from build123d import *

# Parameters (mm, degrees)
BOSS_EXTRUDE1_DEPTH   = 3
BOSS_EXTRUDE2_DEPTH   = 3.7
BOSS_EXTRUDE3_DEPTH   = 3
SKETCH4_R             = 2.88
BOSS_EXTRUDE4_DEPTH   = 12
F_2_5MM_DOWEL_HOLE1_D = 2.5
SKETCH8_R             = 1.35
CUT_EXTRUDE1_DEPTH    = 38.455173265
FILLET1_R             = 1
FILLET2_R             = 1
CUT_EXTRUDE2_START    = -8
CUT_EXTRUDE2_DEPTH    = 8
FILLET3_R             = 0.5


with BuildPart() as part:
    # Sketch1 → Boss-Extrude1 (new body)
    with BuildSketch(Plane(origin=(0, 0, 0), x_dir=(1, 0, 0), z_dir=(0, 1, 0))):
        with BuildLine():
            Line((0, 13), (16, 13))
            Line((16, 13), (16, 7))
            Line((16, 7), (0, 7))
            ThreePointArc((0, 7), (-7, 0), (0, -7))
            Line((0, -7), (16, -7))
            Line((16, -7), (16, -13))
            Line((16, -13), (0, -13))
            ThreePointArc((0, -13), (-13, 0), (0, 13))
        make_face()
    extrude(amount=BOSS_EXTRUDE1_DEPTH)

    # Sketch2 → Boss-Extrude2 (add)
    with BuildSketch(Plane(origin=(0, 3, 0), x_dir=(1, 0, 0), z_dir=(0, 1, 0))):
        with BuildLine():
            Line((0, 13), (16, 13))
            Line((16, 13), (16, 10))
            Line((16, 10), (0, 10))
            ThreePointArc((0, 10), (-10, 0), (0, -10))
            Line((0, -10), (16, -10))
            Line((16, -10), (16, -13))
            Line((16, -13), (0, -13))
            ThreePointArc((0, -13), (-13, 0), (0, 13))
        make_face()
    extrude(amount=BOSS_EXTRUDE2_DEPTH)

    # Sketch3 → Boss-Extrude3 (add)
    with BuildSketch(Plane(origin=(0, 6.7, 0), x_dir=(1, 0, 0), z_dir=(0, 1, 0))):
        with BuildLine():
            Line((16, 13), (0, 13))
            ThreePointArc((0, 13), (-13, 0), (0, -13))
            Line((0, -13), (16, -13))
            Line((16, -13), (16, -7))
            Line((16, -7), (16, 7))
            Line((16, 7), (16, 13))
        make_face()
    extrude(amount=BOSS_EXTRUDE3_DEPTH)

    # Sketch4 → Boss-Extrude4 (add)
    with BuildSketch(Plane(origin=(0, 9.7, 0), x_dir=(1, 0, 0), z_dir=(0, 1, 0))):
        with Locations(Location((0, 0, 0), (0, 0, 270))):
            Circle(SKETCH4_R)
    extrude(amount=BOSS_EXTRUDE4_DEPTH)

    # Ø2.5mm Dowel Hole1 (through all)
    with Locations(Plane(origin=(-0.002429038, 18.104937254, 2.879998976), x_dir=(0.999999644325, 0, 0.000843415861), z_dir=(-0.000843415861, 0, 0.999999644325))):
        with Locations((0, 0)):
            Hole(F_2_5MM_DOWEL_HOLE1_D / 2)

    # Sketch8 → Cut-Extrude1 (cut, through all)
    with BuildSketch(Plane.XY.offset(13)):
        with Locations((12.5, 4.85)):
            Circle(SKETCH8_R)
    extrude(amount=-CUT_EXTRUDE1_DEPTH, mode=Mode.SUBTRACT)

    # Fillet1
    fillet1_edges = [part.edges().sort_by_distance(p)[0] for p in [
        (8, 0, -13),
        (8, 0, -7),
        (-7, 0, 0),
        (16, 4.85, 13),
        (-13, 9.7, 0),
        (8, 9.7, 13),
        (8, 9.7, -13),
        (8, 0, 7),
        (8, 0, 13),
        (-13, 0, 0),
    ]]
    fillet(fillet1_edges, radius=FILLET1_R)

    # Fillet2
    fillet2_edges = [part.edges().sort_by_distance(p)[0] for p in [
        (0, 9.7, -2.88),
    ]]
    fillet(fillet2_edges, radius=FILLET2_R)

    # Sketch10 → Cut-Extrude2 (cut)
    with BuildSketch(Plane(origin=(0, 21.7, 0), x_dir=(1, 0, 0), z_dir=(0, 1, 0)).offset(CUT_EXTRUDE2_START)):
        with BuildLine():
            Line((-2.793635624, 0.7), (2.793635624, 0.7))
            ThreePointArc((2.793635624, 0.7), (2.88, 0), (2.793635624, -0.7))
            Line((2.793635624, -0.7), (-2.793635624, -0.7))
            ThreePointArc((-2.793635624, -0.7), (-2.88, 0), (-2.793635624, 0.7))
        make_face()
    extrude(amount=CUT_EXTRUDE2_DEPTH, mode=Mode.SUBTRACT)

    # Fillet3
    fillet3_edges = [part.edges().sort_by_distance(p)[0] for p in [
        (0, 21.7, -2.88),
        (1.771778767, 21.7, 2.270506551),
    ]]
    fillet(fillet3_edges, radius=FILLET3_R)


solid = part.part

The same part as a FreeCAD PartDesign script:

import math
import FreeCAD as App
import Part
import Sketcher

V = App.Vector
Q = App.Units.Quantity


def edges_at(feature, points):
    """Names of the edges that pass closest to the given points."""
    edges = feature.Shape.Edges
    near = lambda p: min(range(len(edges)), key=lambda i: edges[i].distToShape(Part.Vertex(*p))[0])
    return sorted({f"Edge{near(p) + 1}" for p in points})

doc = App.newDocument("Part")
body = doc.addObject("PartDesign::Body", "Body")

sketch1 = doc.addObject("Sketcher::SketchObject", "Sketch")
body.addObject(sketch1)
sketch1.AttachmentSupport = (doc.XZ_Plane, [""])
sketch1.MapMode = "FlatFace"
sketch1.addGeometry([
    Part.LineSegment(V(16, -13, 0), V(0, -13, 0)),
    Part.ArcOfCircle(Part.Circle(V(0, 0, 0), V(0, 0, 1), 13), math.radians(90), math.radians(270)),
    Part.LineSegment(V(0, 13, 0), V(16, 13, 0)),
    Part.LineSegment(V(16, 13, 0), V(16, 7, 0)),
    Part.LineSegment(V(16, 7, 0), V(0, 7, 0)),
    Part.ArcOfCircle(Part.Circle(V(0, 0, 0), V(0, 0, 1), 7), math.radians(90), math.radians(270)),
    Part.LineSegment(V(0, -7, 0), V(16, -7, 0)),
    Part.LineSegment(V(16, -7, 0), V(16, -13, 0)),
], False)
sketch1.addConstraint([
    Sketcher.Constraint("Tangent", 0, 2, 1, 2),
    Sketcher.Constraint("Tangent", 1, 1, 2, 1),
    Sketcher.Constraint("Coincident", 2, 2, 3, 1),
    Sketcher.Constraint("Coincident", 3, 2, 4, 1),
    Sketcher.Constraint("Tangent", 4, 2, 5, 1),
    Sketcher.Constraint("Tangent", 5, 2, 6, 1),
    Sketcher.Constraint("Coincident", 6, 2, 7, 1),
    Sketcher.Constraint("Coincident", 7, 2, 0, 1),
    Sketcher.Constraint("Horizontal", 0),
    Sketcher.Constraint("Horizontal", 2),
    Sketcher.Constraint("Vertical", 3),
    Sketcher.Constraint("Horizontal", 4),
    Sketcher.Constraint("Horizontal", 6),
    Sketcher.Constraint("Vertical", 7),
    Sketcher.Constraint("Coincident", 1, 3, -1, 1),
    Sketcher.Constraint("Coincident", 5, 3, -1, 1),
    Sketcher.Constraint("Vertical", 3, 2, 6, 2),
    Sketcher.Constraint("Radius", 1, Q("13 mm")),
    Sketcher.Constraint("Radius", 5, Q("7 mm")),
    Sketcher.Constraint("DistanceX", 0, 2, 0, 1, Q("16 mm")),
])
pad1 = doc.addObject("PartDesign::Pad", "Pad")
body.addObject(pad1)
pad1.Profile = sketch1
pad1.Length = 3
pad1.Reversed = True

sketch2 = doc.addObject("Sketcher::SketchObject", "Sketch001")
body.addObject(sketch2)
sketch2.AttachmentSupport = (doc.XZ_Plane, [""])
sketch2.MapMode = "FlatFace"
sketch2.AttachmentOffset = App.Placement(V(0, 0, -3), App.Rotation())
sketch2.addGeometry([
    Part.LineSegment(V(16, -13, 0), V(0, -13, 0)),
    Part.ArcOfCircle(Part.Circle(V(0, 0, 0), V(0, 0, 1), 13), math.radians(90), math.radians(270)),
    Part.LineSegment(V(0, 13, 0), V(16, 13, 0)),
    Part.LineSegment(V(16, 13, 0), V(16, 10, 0)),
    Part.LineSegment(V(16, 10, 0), V(0, 10, 0)),
    Part.ArcOfCircle(Part.Circle(V(0, 0, 0), V(0, 0, 1), 10), math.radians(90), math.radians(270)),
    Part.LineSegment(V(0, -10, 0), V(16, -10, 0)),
    Part.LineSegment(V(16, -10, 0), V(16, -13, 0)),
], False)
sketch2.addConstraint([
    Sketcher.Constraint("Tangent", 0, 2, 1, 2),
    Sketcher.Constraint("Tangent", 1, 1, 2, 1),
    Sketcher.Constraint("Coincident", 2, 2, 3, 1),
    Sketcher.Constraint("Coincident", 3, 2, 4, 1),
    Sketcher.Constraint("Tangent", 4, 2, 5, 1),
    Sketcher.Constraint("Tangent", 5, 2, 6, 1),
    Sketcher.Constraint("Coincident", 6, 2, 7, 1),
    Sketcher.Constraint("Coincident", 7, 2, 0, 1),
    Sketcher.Constraint("Horizontal", 0),
    Sketcher.Constraint("Horizontal", 2),
    Sketcher.Constraint("Vertical", 3),
    Sketcher.Constraint("Horizontal", 4),
    Sketcher.Constraint("Horizontal", 6),
    Sketcher.Constraint("Vertical", 7),
    Sketcher.Constraint("Coincident", 1, 3, -1, 1),
    Sketcher.Constraint("Coincident", 5, 3, -1, 1),
    Sketcher.Constraint("Vertical", 3, 2, 6, 2),
    Sketcher.Constraint("Radius", 1, Q("13 mm")),
    Sketcher.Constraint("Radius", 5, Q("10 mm")),
    Sketcher.Constraint("DistanceX", 0, 2, 0, 1, Q("16 mm")),
])
pad2 = doc.addObject("PartDesign::Pad", "Pad001")
body.addObject(pad2)
pad2.Profile = sketch2
pad2.Length = 3.7
pad2.Reversed = True

sketch3 = doc.addObject("Sketcher::SketchObject", "Sketch002")
body.addObject(sketch3)
sketch3.AttachmentSupport = (doc.XZ_Plane, [""])
sketch3.MapMode = "FlatFace"
sketch3.AttachmentOffset = App.Placement(V(0, 0, -6.7), App.Rotation())
sketch3.addGeometry([
    Part.LineSegment(V(16, -13, 0), V(0, -13, 0)),
    Part.ArcOfCircle(Part.Circle(V(0, 0, 0), V(0, 0, 1), 13), math.radians(90), math.radians(270)),
    Part.LineSegment(V(0, 13, 0), V(16, 13, 0)),
    Part.LineSegment(V(16, 13, 0), V(16, -13, 0)),
], False)
sketch3.addConstraint([
    Sketcher.Constraint("Tangent", 0, 2, 1, 2),
    Sketcher.Constraint("Tangent", 1, 1, 2, 1),
    Sketcher.Constraint("Coincident", 2, 2, 3, 1),
    Sketcher.Constraint("Coincident", 3, 2, 0, 1),
    Sketcher.Constraint("Horizontal", 0),
    Sketcher.Constraint("Horizontal", 2),
    Sketcher.Constraint("Vertical", 3),
    Sketcher.Constraint("Coincident", 1, 3, -1, 1),
    Sketcher.Constraint("Radius", 1, Q("13 mm")),
    Sketcher.Constraint("DistanceX", 0, 2, 0, 1, Q("16 mm")),
])
pad3 = doc.addObject("PartDesign::Pad", "Pad002")
body.addObject(pad3)
pad3.Profile = sketch3
pad3.Length = 3
pad3.Reversed = True

sketch4 = doc.addObject("Sketcher::SketchObject", "Sketch003")
body.addObject(sketch4)
sketch4.AttachmentSupport = (doc.XZ_Plane, [""])
sketch4.MapMode = "FlatFace"
sketch4.AttachmentOffset = App.Placement(V(0, 0, -9.7), App.Rotation())
sketch4.addGeometry(Part.Circle(V(0, 0, 0), V(0, 0, 1), 2.9), False)
sketch4.addConstraint([
    Sketcher.Constraint("Coincident", 0, 3, -1, 1),
    Sketcher.Constraint("Diameter", 0, Q("5.76 mm")),
])
pad4 = doc.addObject("PartDesign::Pad", "Pad003")
body.addObject(pad4)
pad4.Profile = sketch4
pad4.Length = 12
pad4.Reversed = True

sketch5 = doc.addObject("Sketcher::SketchObject", "Sketch004")
body.addObject(sketch5)
sketch5.Placement = App.Placement(V(-0.002429, 0, 2.879999), App.Rotation(V(0.999999644, 0, 0.000843416), V(0, 0.999999999, 0), V(-0.000843416, 0, 0.999999644), "ZXY"))
sketch5.addGeometry(Part.Circle(V(0, 18.1, 0), V(0, 0, 1), 1.2), False)
sketch5.addConstraint([
    Sketcher.Constraint("PointOnObject", 0, 3, -2),
    Sketcher.Constraint("Diameter", 0, Q("2.5 mm")),
    Sketcher.Constraint("DistanceY", -1, 1, 0, 3, Q("18.104937 mm")),
])
doc.recompute()
hole = doc.addObject("PartDesign::Hole", "Hole")
body.addObject(hole)
hole.Profile = sketch5
hole.ThreadType = "None"
hole.Diameter = 2.5
hole.DepthType = "ThroughAll"

sketch6 = doc.addObject("Sketcher::SketchObject", "Sketch005")
body.addObject(sketch6)
sketch6.AttachmentSupport = (doc.XY_Plane, [""])
sketch6.MapMode = "FlatFace"
sketch6.AttachmentOffset = App.Placement(V(0, 0, 13), App.Rotation())
sketch6.addGeometry(Part.Circle(V(12.5, 4.8, 0), V(0, 0, 1), 1.4), False)
sketch6.addConstraint([
    Sketcher.Constraint("Diameter", 0, Q("2.7 mm")),
    Sketcher.Constraint("DistanceX", -1, 1, 0, 3, Q("12.5 mm")),
    Sketcher.Constraint("DistanceY", -1, 1, 0, 3, Q("4.85 mm")),
])
pocket1 = doc.addObject("PartDesign::Pocket", "Pocket")
body.addObject(pocket1)
pocket1.Profile = sketch6
pocket1.Type = "ThroughAll"
doc.recompute()

fillet = doc.addObject("PartDesign::Fillet", "Fillet")
body.addObject(fillet)
fillet.Base = (pocket1, edges_at(pocket1, [
    (8, 0, -13),
    (8, 0, -7),
    (-7, 0, 0),
    (16, 4.85, 13),
    (-13, 9.7, 0),
    (8, 9.7, 13),
    (8, 9.7, -13),
    (8, 0, 7),
    (8, 0, 13),
    (-13, 0, 0),
]))
fillet.Radius = 1
doc.recompute()

fillet2 = doc.addObject("PartDesign::Fillet", "Fillet001")
body.addObject(fillet2)
fillet2.Base = (fillet, edges_at(fillet, [(0, 9.7, -2.88)]))
fillet2.Radius = 1

sketch7 = doc.addObject("Sketcher::SketchObject", "Sketch006")
body.addObject(sketch7)
sketch7.AttachmentSupport = (doc.XZ_Plane, [""])
sketch7.MapMode = "FlatFace"
sketch7.AttachmentOffset = App.Placement(V(0, 0, -13.7), App.Rotation())
sketch7.addGeometry([
    Part.LineSegment(V(2.8, -0.7, 0), V(-2.8, -0.7, 0)),
    Part.ArcOfCircle(Part.Circle(V(0, 0, 0), V(0, 0, 1), 2.9), math.radians(166), math.radians(194)),
    Part.LineSegment(V(-2.8, 0.7, 0), V(2.8, 0.7, 0)),
    Part.ArcOfCircle(Part.Circle(V(0, 0, 0), V(0, 0, 1), 2.9), math.radians(-14), math.radians(14)),
], False)
sketch7.addConstraint([
    Sketcher.Constraint("Coincident", 0, 2, 1, 2),
    Sketcher.Constraint("Coincident", 1, 1, 2, 1),
    Sketcher.Constraint("Coincident", 2, 2, 3, 2),
    Sketcher.Constraint("Coincident", 3, 1, 0, 1),
    Sketcher.Constraint("Horizontal", 0),
    Sketcher.Constraint("Horizontal", 2),
    Sketcher.Constraint("Coincident", 1, 3, -1, 1),
    Sketcher.Constraint("Coincident", 3, 3, -1, 1),
    Sketcher.Constraint("Equal", 1, 3),
    Sketcher.Constraint("Vertical", 0, 2, 1, 1),
    Sketcher.Constraint("Radius", 1, Q("2.88 mm")),
    Sketcher.Constraint("DistanceY", 0, 2, -1, 1, Q("0.7 mm")),
])
pocket2 = doc.addObject("PartDesign::Pocket", "Pocket001")
body.addObject(pocket2)
pocket2.Profile = sketch7
pocket2.Length = 8
doc.recompute()

fillet3 = doc.addObject("PartDesign::Fillet", "Fillet002")
body.addObject(fillet3)
fillet3.Base = (pocket2, edges_at(pocket2, [(0, 21.7, -2.88), (1.772, 21.7, 2.271)]))
fillet3.Radius = 0.5

doc.recompute()
